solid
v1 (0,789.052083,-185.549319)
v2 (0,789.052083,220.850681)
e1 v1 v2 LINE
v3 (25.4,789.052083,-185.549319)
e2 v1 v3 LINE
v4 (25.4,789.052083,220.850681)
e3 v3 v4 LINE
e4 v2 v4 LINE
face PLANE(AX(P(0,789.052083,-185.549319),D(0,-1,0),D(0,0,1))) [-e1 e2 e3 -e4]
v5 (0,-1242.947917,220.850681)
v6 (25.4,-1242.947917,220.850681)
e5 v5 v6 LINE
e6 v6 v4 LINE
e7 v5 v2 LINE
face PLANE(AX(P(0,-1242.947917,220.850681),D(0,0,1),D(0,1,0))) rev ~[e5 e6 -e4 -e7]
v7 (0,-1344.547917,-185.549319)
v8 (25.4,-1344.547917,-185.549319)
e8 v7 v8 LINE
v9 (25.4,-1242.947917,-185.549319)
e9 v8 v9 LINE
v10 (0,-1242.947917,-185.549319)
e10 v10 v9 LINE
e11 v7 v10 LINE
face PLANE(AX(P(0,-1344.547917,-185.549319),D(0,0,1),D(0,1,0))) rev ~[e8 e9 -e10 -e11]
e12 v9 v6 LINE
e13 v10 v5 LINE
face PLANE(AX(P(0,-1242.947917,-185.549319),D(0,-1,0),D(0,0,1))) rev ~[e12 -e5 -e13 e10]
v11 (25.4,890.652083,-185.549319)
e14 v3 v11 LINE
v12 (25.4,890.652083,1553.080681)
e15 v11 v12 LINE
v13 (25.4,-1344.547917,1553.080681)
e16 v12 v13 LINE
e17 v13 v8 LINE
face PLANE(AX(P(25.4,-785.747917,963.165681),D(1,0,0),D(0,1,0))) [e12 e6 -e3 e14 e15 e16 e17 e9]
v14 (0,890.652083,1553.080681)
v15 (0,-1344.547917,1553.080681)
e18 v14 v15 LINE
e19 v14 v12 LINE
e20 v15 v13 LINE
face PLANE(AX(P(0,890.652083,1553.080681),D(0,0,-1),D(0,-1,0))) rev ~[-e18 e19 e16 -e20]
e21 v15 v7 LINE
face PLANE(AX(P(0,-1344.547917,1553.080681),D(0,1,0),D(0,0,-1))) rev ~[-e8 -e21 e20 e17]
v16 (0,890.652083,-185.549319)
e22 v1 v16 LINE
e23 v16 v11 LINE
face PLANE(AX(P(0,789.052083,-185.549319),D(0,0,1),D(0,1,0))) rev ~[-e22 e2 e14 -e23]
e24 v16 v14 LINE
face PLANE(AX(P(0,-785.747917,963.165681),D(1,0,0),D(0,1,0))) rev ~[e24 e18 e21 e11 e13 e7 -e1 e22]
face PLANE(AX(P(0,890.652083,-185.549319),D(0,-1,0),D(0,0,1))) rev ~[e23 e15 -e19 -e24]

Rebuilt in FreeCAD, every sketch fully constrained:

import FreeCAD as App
import Part
import Sketcher

V = App.Vector
Q = App.Units.Quantity

doc = App.newDocument("Part")
body = doc.addObject("PartDesign::Body", "Body")

sketch1 = body.newObject("Sketcher::SketchObject", "Sketch")
sketch1.AttachmentSupport = (doc.getObject("YZ_Plane"), [""])
sketch1.MapMode = "FlatFace"
sketch1.addGeometry(Part.LineSegment(V(-1345, 1553, 0), V(-1345, -186, 0)), False)
sketch1.addGeometry(Part.LineSegment(V(-1345, -186, 0), V(-1243, -186, 0)), False)
sketch1.addGeometry(Part.LineSegment(V(-1243, -186, 0), V(-1243, 221, 0)), False)
sketch1.addGeometry(Part.LineSegment(V(-1243, 221, 0), V(789, 221, 0)), False)
sketch1.addGeometry(Part.LineSegment(V(789, 221, 0), V(789, -186, 0)), False)
sketch1.addGeometry(Part.LineSegment(V(789, -186, 0), V(891, -186, 0)), False)
sketch1.addGeometry(Part.LineSegment(V(891, -186, 0), V(891, 1553, 0)), False)
sketch1.addGeometry(Part.LineSegment(V(891, 1553, 0), V(-1345, 1553, 0)), False)
sketch1.addConstraint(Sketcher.Constraint("Coincident", 0, 2, 1, 1))
sketch1.addConstraint(Sketcher.Constraint("Coincident", 1, 2, 2, 1))
sketch1.addConstraint(Sketcher.Constraint("Coincident", 2, 2, 3, 1))
sketch1.addConstraint(Sketcher.Constraint("Coincident", 3, 2, 4, 1))
sketch1.addConstraint(Sketcher.Constraint("Coincident", 4, 2, 5, 1))
sketch1.addConstraint(Sketcher.Constraint("Coincident", 5, 2, 6, 1))
sketch1.addConstraint(Sketcher.Constraint("Coincident", 6, 2, 7, 1))
sketch1.addConstraint(Sketcher.Constraint("Coincident", 7, 2, 0, 1))
sketch1.addConstraint(Sketcher.Constraint("Vertical", 0))
sketch1.addConstraint(Sketcher.Constraint("Horizontal", 1))
sketch1.addConstraint(Sketcher.Constraint("Vertical", 2))
sketch1.addConstraint(Sketcher.Constraint("Horizontal", 3))
sketch1.addConstraint(Sketcher.Constraint("Vertical", 4))
sketch1.addConstraint(Sketcher.Constraint("Horizontal", 5))
sketch1.addConstraint(Sketcher.Constraint("Vertical", 6))
sketch1.addConstraint(Sketcher.Constraint("Horizontal", 7))
sketch1.addConstraint(Sketcher.Constraint("Horizontal", 1, 2, 4, 2))
sketch1.addConstraint(Sketcher.Constraint("Equal", 1, 5))
sketch1.addConstraint(Sketcher.Constraint("DistanceX", 1, 1, 1, 2, Q("4 in")))
sketch1.addConstraint(Sketcher.Constraint("DistanceX", 3, 1, 3, 2, Q("80 in")))
sketch1.addConstraint(Sketcher.Constraint("DistanceY", 2, 1, 2, 2, Q("16 in")))
sketch1.addConstraint(Sketcher.Constraint("DistanceY", 0, 2, 0, 1, Q("68.45 in")))
sketch1.addConstraint(Sketcher.Constraint("DistanceY", 0, 2, -1, 1, Q("185.549319 mm")))
sketch1.addConstraint(Sketcher.Constraint("DistanceX", 0, 2, -1, 1, Q("1344.547917 mm")))
pad1 = body.newObject("PartDesign::Pad", "Pad")
pad1.Profile = sketch1
pad1.Length = Q("1 in")

doc.recompute()
